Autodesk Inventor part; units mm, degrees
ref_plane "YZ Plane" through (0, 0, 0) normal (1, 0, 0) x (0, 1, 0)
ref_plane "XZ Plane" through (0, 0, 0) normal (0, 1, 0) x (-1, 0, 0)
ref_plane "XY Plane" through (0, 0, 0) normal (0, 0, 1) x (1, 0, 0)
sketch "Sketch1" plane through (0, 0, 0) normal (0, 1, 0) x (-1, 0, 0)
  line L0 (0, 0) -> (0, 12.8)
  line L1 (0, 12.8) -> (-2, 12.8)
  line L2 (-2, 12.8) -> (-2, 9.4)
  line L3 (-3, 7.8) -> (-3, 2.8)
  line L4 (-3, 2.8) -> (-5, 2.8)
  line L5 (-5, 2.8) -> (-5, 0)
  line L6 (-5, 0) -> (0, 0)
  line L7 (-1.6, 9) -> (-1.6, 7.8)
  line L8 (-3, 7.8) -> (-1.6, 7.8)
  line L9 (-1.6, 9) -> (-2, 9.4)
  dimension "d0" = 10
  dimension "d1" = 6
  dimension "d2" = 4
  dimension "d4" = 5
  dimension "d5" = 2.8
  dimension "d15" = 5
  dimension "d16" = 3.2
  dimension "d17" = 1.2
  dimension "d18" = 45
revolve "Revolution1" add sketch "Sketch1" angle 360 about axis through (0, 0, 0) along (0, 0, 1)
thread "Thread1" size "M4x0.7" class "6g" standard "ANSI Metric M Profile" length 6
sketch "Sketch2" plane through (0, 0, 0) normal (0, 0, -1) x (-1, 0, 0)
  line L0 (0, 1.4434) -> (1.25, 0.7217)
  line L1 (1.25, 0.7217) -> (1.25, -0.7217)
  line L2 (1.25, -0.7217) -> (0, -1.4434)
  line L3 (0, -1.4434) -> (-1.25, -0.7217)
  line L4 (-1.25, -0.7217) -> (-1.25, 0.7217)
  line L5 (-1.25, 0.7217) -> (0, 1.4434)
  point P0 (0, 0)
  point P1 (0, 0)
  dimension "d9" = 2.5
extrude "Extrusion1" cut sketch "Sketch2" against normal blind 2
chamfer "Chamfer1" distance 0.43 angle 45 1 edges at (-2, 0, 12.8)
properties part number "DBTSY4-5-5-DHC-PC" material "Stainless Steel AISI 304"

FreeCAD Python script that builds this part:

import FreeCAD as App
import Part
import Sketcher
Q = App.Units.Quantity


def edges_at(feature, points):
    """Names of the edges that pass closest to the given points."""
    edges = feature.Shape.Edges
    near = lambda p: min(range(len(edges)), key=lambda i: edges[i].distToShape(Part.Vertex(*p))[0])
    return sorted({f"Edge{near(p) + 1}" for p in points})

doc = App.newDocument("Part")
body = doc.addObject("PartDesign::Body", "Body")

sketch1 = doc.addObject("Sketcher::SketchObject", "Sketch")
body.addObject(sketch1)
sketch1.AttachmentSupport = (doc.XZ_Plane, [""])
sketch1.MapMode = "FlatFace"
sketch1.addGeometry([
    Part.LineSegment(App.Vector(5, 0, 0), App.Vector(0, 0, 0)),
    Part.LineSegment(App.Vector(0, 0, 0), App.Vector(0, 12.8, 0)),
    Part.LineSegment(App.Vector(0, 12.8, 0), App.Vector(2, 12.8, 0)),
    Part.LineSegment(App.Vector(2, 12.8, 0), App.Vector(2, 9.4, 0)),
    Part.LineSegment(App.Vector(2, 9.4, 0), App.Vector(1.6, 9, 0)),
    Part.LineSegment(App.Vector(1.6, 9, 0), App.Vector(1.6, 7.8, 0)),
    Part.LineSegment(App.Vector(1.6, 7.8, 0), App.Vector(3, 7.8, 0)),
    Part.LineSegment(App.Vector(3, 7.8, 0), App.Vector(3, 2.8, 0)),
    Part.LineSegment(App.Vector(3, 2.8, 0), App.Vector(5, 2.8, 0)),
    Part.LineSegment(App.Vector(5, 2.8, 0), App.Vector(5, 0, 0)),
], False)
sketch1.addConstraint([
    Sketcher.Constraint("Coincident", 0, 2, 1, 1),
    Sketcher.Constraint("Coincident", 1, 2, 2, 1),
    Sketcher.Constraint("Coincident", 2, 2, 3, 1),
    Sketcher.Constraint("Coincident", 3, 2, 4, 1),
    Sketcher.Constraint("Coincident", 4, 2, 5, 1),
    Sketcher.Constraint("Coincident", 5, 2, 6, 1),
    Sketcher.Constraint("Coincident", 6, 2, 7, 1),
    Sketcher.Constraint("Coincident", 7, 2, 8, 1),
    Sketcher.Constraint("Coincident", 8, 2, 9, 1),
    Sketcher.Constraint("Coincident", 9, 2, 0, 1),
    Sketcher.Constraint("Horizontal", 0),
    Sketcher.Constraint("Vertical", 1),
    Sketcher.Constraint("Horizontal", 2),
    Sketcher.Constraint("Vertical", 3),
    Sketcher.Constraint("Vertical", 5),
    Sketcher.Constraint("Horizontal", 6),
    Sketcher.Constraint("Vertical", 7),
    Sketcher.Constraint("Horizontal", 8),
    Sketcher.Constraint("Vertical", 9),
    Sketcher.Constraint("Coincident", 0, 2, -1, 1),
    Sketcher.Constraint("Equal", 2, 8),
    Sketcher.Constraint("Equal", 0, 7),
    Sketcher.Constraint("DistanceX", 0, 2, 0, 1, 5.0),
    Sketcher.Constraint("DistanceY", 5, 2, 5, 1, 1.2),
    Sketcher.Constraint("DistanceY", 9, 2, 9, 1, 2.8),
    Sketcher.Constraint("DistanceY", 5, 2, 2, 2, 5.0),
    Sketcher.Constraint("DistanceX", 2, 1, 2, 2, 2.0),
    Sketcher.Constraint("Angle", 4, Q("-135 deg")),
    Sketcher.Constraint("DistanceX", 6, 1, 6, 2, 1.4),
])
revolution = doc.addObject("PartDesign::Revolution", "Revolution")
body.addObject(revolution)
revolution.Profile = sketch1
revolution.ReferenceAxis = (sketch1, ["V_Axis"])
revolution.Angle = 360

sketch2 = doc.addObject("Sketcher::SketchObject", "Sketch001")
body.addObject(sketch2)
sketch2.AttachmentSupport = (doc.XY_Plane, [""])
sketch2.MapMode = "FlatFace"
sketch2.addGeometry([
    Part.LineSegment(App.Vector(-1.2, 0.7, 0), App.Vector(0, 1.4, 0)),
    Part.LineSegment(App.Vector(0, 1.4, 0), App.Vector(1.2, 0.7, 0)),
    Part.LineSegment(App.Vector(1.2, 0.7, 0), App.Vector(1.2, -0.7, 0)),
    Part.LineSegment(App.Vector(1.2, -0.7, 0), App.Vector(0, -1.4, 0)),
    Part.LineSegment(App.Vector(0, -1.4, 0), App.Vector(-1.2, -0.7, 0)),
    Part.LineSegment(App.Vector(-1.2, -0.7, 0), App.Vector(-1.2, 0.7, 0)),
], False)
sketch2.addConstraint([
    Sketcher.Constraint("Coincident", 0, 2, 1, 1),
    Sketcher.Constraint("Coincident", 1, 2, 2, 1),
    Sketcher.Constraint("Coincident", 2, 2, 3, 1),
    Sketcher.Constraint("Coincident", 3, 2, 4, 1),
    Sketcher.Constraint("Coincident", 4, 2, 5, 1),
    Sketcher.Constraint("Coincident", 5, 2, 0, 1),
    Sketcher.Constraint("Vertical", 2),
    Sketcher.Constraint("Vertical", 5),
    Sketcher.Constraint("Symmetric", 0, 2, 3, 2, -1, 1),
    Sketcher.Constraint("Symmetric", 1, 2, 4, 2, -1, 1),
    Sketcher.Constraint("PointOnObject", 0, 2, -2),
    Sketcher.Constraint("Parallel", 0, 3),
    Sketcher.Constraint("Horizontal", 2, 2, 4, 2),
    Sketcher.Constraint("DistanceX", 4, 2, 2, 2, 2.5),
    Sketcher.Constraint("Angle", 0, Q("30.0004 deg")),
    Sketcher.Constraint("DistanceY", 2, 2, 2, 1, 1.4434),
])
pocket1 = doc.addObject("PartDesign::Pocket", "Pocket")
body.addObject(pocket1)
pocket1.Profile = sketch2
pocket1.Length = 2
pocket1.Reversed = True
doc.recompute()

chamfer = doc.addObject("PartDesign::Chamfer", "Chamfer")
body.addObject(chamfer)
chamfer.Base = (pocket1, edges_at(pocket1, [(-2, 0, 12.8)]))
chamfer.Size = 0.43

doc.recompute()
